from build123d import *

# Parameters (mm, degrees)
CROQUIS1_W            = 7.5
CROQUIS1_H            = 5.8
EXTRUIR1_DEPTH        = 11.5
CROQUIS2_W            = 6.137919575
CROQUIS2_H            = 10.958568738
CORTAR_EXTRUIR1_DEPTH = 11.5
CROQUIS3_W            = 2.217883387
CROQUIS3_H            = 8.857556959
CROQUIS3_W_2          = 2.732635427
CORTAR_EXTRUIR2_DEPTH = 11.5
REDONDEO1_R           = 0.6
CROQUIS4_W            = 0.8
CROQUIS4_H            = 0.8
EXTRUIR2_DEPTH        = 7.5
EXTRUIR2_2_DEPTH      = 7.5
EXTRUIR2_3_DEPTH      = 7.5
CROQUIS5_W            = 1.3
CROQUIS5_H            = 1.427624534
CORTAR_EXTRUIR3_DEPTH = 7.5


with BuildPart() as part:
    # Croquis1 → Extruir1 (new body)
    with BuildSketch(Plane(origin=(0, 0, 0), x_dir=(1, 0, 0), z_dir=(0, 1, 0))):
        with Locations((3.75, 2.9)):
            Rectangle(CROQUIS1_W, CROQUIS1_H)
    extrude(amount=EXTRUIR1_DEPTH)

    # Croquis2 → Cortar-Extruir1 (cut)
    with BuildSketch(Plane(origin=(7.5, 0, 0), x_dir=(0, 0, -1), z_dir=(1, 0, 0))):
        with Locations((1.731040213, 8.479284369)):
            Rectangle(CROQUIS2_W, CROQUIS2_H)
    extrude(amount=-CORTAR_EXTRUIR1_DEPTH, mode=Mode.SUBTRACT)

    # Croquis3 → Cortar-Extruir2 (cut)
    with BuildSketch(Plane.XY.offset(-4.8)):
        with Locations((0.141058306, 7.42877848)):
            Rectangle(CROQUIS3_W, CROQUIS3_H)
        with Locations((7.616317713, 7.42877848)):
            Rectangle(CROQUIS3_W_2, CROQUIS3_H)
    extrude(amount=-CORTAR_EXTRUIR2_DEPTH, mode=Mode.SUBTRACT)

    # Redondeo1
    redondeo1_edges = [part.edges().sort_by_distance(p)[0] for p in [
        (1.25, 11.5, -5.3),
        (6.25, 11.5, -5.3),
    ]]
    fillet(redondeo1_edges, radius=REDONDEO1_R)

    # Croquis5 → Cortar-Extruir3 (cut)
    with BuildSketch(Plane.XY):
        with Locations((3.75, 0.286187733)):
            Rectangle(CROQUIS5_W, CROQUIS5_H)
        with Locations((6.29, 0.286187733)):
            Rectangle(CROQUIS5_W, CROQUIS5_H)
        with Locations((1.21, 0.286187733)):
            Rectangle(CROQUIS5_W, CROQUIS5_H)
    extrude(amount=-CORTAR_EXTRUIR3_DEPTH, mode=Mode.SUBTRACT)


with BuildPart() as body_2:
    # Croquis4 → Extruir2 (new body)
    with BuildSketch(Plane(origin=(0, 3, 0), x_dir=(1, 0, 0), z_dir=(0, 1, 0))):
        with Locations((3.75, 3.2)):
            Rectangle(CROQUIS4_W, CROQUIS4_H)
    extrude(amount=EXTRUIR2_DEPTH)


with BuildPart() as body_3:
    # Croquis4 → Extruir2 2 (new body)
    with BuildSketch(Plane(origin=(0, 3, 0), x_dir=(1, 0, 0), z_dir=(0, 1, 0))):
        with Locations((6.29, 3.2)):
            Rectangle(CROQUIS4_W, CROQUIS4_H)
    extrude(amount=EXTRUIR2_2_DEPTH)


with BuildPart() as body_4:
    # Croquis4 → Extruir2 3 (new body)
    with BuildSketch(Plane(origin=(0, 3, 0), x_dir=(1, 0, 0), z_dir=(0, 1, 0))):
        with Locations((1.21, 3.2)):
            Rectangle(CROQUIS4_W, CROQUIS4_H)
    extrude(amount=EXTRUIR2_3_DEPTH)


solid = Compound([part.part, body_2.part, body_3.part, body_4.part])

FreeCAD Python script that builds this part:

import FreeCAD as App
import Part
import Sketcher
from FreeCAD import Vector
Q = App.Units.Quantity


def edges_at(feature, points):
    """Names of the edges that pass closest to the given points."""
    edges = feature.Shape.Edges
    near = lambda p: min(range(len(edges)), key=lambda i: edges[i].distToShape(Part.Vertex(*p))[0])
    return sorted({f"Edge{near(p) + 1}" for p in points})

doc = App.newDocument("Part")
body = doc.addObject("PartDesign::Body", "Body")

# Sketch on XZ plane
sketch1 = body.newObject("Sketcher::SketchObject", "Sketch")
sketch1.AttachmentSupport = (doc.getObject("XZ_Plane"), [""])
sketch1.MapMode = "FlatFace"
sketch1.addGeometry(Part.LineSegment(Vector(0, -6, 0), Vector(0, 0, 0)), False)
sketch1.addGeometry(Part.LineSegment(Vector(0, 0, 0), Vector(8, 0, 0)), False)
sketch1.addGeometry(Part.LineSegment(Vector(8, 0, 0), Vector(8, -6, 0)), False)
sketch1.addGeometry(Part.LineSegment(Vector(8, -6, 0), Vector(0, -6, 0)), False)
sketch1.addConstraint(Sketcher.Constraint("Coincident", 0, 2, 1, 1))
sketch1.addConstraint(Sketcher.Constraint("Coincident", 1, 2, 2, 1))
sketch1.addConstraint(Sketcher.Constraint("Coincident", 2, 2, 3, 1))
sketch1.addConstraint(Sketcher.Constraint("Coincident", 3, 2, 0, 1))
sketch1.addConstraint(Sketcher.Constraint("Vertical", 0))
sketch1.addConstraint(Sketcher.Constraint("Horizontal", 1))
sketch1.addConstraint(Sketcher.Constraint("Vertical", 2))
sketch1.addConstraint(Sketcher.Constraint("Horizontal", 3))
sketch1.addConstraint(Sketcher.Constraint("Coincident", 0, 2, -1, 1))
sketch1.addConstraint(Sketcher.Constraint("DistanceX", 1, 1, 1, 2, Q("7.5 mm")))
sketch1.addConstraint(Sketcher.Constraint("DistanceY", 0, 1, 0, 2, Q("5.8 mm")))
pad1 = body.newObject("PartDesign::Pad", "Pad")
pad1.Profile = sketch1
pad1.Length = 11.5
pad1.Reversed = True

# Sketch on YZ plane
sketch2 = body.newObject("Sketcher::SketchObject", "Sketch001")
sketch2.AttachmentSupport = (doc.getObject("YZ_Plane"), [""])
sketch2.MapMode = "FlatFace"
sketch2.AttachmentOffset = App.Placement(Vector(0, 0, 7.5), App.Rotation())
sketch2.addGeometry(Part.LineSegment(Vector(14, 1, 0), Vector(3, 1, 0)), False)
sketch2.addGeometry(Part.LineSegment(Vector(3, 1, 0), Vector(3, -5, 0)), False)
sketch2.addGeometry(Part.LineSegment(Vector(3, -5, 0), Vector(14, -5, 0)), False)
sketch2.addGeometry(Part.LineSegment(Vector(14, -5, 0), Vector(14, 1, 0)), False)
sketch2.addConstraint(Sketcher.Constraint("Coincident", 0, 2, 1, 1))
sketch2.addConstraint(Sketcher.Constraint("Coincident", 1, 2, 2, 1))
sketch2.addConstraint(Sketcher.Constraint("Coincident", 2, 2, 3, 1))
sketch2.addConstraint(Sketcher.Constraint("Coincident", 3, 2, 0, 1))
sketch2.addConstraint(Sketcher.Constraint("Horizontal", 0))
sketch2.addConstraint(Sketcher.Constraint("Vertical", 1))
sketch2.addConstraint(Sketcher.Constraint("Horizontal", 2))
sketch2.addConstraint(Sketcher.Constraint("Vertical", 3))
sketch2.addConstraint(Sketcher.Constraint("DistanceX", -1, 1, 0, 2, Q("3 mm")))
sketch2.addConstraint(Sketcher.Constraint("DistanceY", 1, 2, -1, 1, Q("4.8 mm")))
sketch2.addConstraint(Sketcher.Constraint("DistanceX", 0, 2, 0, 1, Q("10.958569 mm")))
sketch2.addConstraint(Sketcher.Constraint("DistanceY", 1, 2, 1, 1, Q("6.13792 mm")))
pocket1 = body.newObject("PartDesign::Pocket", "Pocket")
pocket1.Profile = sketch2
pocket1.Length = 11.5

# Sketch on XY plane
sketch3 = body.newObject("Sketcher::SketchObject", "Sketch002")
sketch3.AttachmentSupport = (doc.getObject("XY_Plane"), [""])
sketch3.MapMode = "FlatFace"
sketch3.AttachmentOffset = App.Placement(Vector(0, 0, -4.8), App.Rotation())
sketch3.addGeometry(Part.LineSegment(Vector(-1, 11.9, 0), Vector(-1, 3, 0)), False)
sketch3.addGeometry(Part.LineSegment(Vector(-1, 3, 0), Vector(1.2, 3, 0)), False)
sketch3.addGeometry(Part.LineSegment(Vector(1.2, 3, 0), Vector(1.2, 11.9, 0)), False)
sketch3.addGeometry(Part.LineSegment(Vector(1.2, 11.9, 0), Vector(-1, 11.9, 0)), False)
sketch3.addGeometry(Part.LineSegment(Vector(6.2, 11.9, 0), Vector(6.2, 3, 0)), False)
sketch3.addGeometry(Part.LineSegment(Vector(6.2, 3, 0), Vector(9, 3, 0)), False)
sketch3.addGeometry(Part.LineSegment(Vector(9, 3, 0), Vector(9, 11.9, 0)), False)
sketch3.addGeometry(Part.LineSegment(Vector(9, 11.9, 0), Vector(6.2, 11.9, 0)), False)
sketch3.addConstraint(Sketcher.Constraint("Coincident", 0, 2, 1, 1))
sketch3.addConstraint(Sketcher.Constraint("Coincident", 1, 2, 2, 1))
sketch3.addConstraint(Sketcher.Constraint("Coincident", 2, 2, 3, 1))
sketch3.addConstraint(Sketcher.Constraint("Coincident", 3, 2, 0, 1))
sketch3.addConstraint(Sketcher.Constraint("Coincident", 4, 2, 5, 1))
sketch3.addConstraint(Sketcher.Constraint("Coincident", 5, 2, 6, 1))
sketch3.addConstraint(Sketcher.Constraint("Coincident", 6, 2, 7, 1))
sketch3.addConstraint(Sketcher.Constraint("Coincident", 7, 2, 4, 1))
sketch3.addConstraint(Sketcher.Constraint("Vertical", 0))
sketch3.addConstraint(Sketcher.Constraint("Horizontal", 1))
sketch3.addConstraint(Sketcher.Constraint("Vertical", 2))
sketch3.addConstraint(Sketcher.Constraint("Horizontal", 3))
sketch3.addConstraint(Sketcher.Constraint("Vertical", 4))
sketch3.addConstraint(Sketcher.Constraint("Horizontal", 5))
sketch3.addConstraint(Sketcher.Constraint("Vertical", 6))
sketch3.addConstraint(Sketcher.Constraint("Horizontal", 7))
sketch3.addConstraint(Sketcher.Constraint("Horizontal", 1, 2, 4, 2))
sketch3.addConstraint(Sketcher.Constraint("Horizontal", 3, 2, 6, 2))
sketch3.addConstraint(Sketcher.Constraint("DistanceY", -1, 1, 0, 2, Q("3 mm")))
sketch3.addConstraint(Sketcher.Constraint("DistanceX", 1, 2, 4, 2, Q("5 mm")))
sketch3.addConstraint(Sketcher.Constraint("DistanceX", -1, 1, 1, 2, Q("1.25 mm")))
sketch3.addConstraint(Sketcher.Constraint("DistanceX", 1, 1, 1, 2, Q("2.217883 mm")))
sketch3.addConstraint(Sketcher.Constraint("DistanceX", 5, 1, 5, 2, Q("2.732635 mm")))
sketch3.addConstraint(Sketcher.Constraint("DistanceY", 0, 2, 0, 1, Q("8.857557 mm")))
pocket2 = body.newObject("PartDesign::Pocket", "Pocket001")
pocket2.Profile = sketch3
pocket2.Length = 11.5
doc.recompute()

fillet = body.newObject("PartDesign::Fillet", "Fillet")
fillet.Base = (pocket2, edges_at(pocket2, [(1.25, 11.5, -5.3), (6.25, 11.5, -5.3)]))
fillet.Radius = 0.6

# Sketch on XY plane
sketch4 = body.newObject("Sketcher::SketchObject", "Sketch003")
sketch4.AttachmentSupport = (doc.getObject("XY_Plane"), [""])
sketch4.MapMode = "FlatFace"
sketch4.addGeometry(Part.LineSegment(Vector(3.1, 1, 0), Vector(3.1, -0.4, 0)), False)
sketch4.addGeometry(Part.LineSegment(Vector(3.1, -0.4, 0), Vector(4.4, -0.4, 0)), False)
sketch4.addGeometry(Part.LineSegment(Vector(4.4, -0.4, 0), Vector(4.4, 1, 0)), False)
sketch4.addGeometry(Part.LineSegment(Vector(4.4, 1, 0), Vector(3.1, 1, 0)), False)
sketch4.addGeometry(Part.LineSegment(Vector(5.6, 1, 0), Vector(5.6, -0.4, 0)), False)
sketch4.addGeometry(Part.LineSegment(Vector(5.6, -0.4, 0), Vector(6.9, -0.4, 0)), False)
sketch4.addGeometry(Part.LineSegment(Vector(6.9, -0.4, 0), Vector(6.9, 1, 0)), False)
sketch4.addGeometry(Part.LineSegment(Vector(6.9, 1, 0), Vector(5.6, 1, 0)), False)
sketch4.addGeometry(Part.LineSegment(Vector(0.6, 1, 0), Vector(0.6, -0.4, 0)), False)
sketch4.addGeometry(Part.LineSegment(Vector(0.6, -0.4, 0), Vector(1.9, -0.4, 0)), False)
sketch4.addGeometry(Part.LineSegment(Vector(1.9, -0.4, 0), Vector(1.9, 1, 0)), False)
sketch4.addGeometry(Part.LineSegment(Vector(1.9, 1, 0), Vector(0.6, 1, 0)), False)
sketch4.addConstraint(Sketcher.Constraint("Coincident", 0, 2, 1, 1))
sketch4.addConstraint(Sketcher.Constraint("Coincident", 1, 2, 2, 1))
sketch4.addConstraint(Sketcher.Constraint("Coincident", 2, 2, 3, 1))
sketch4.addConstraint(Sketcher.Constraint("Coincident", 3, 2, 0, 1))
sketch4.addConstraint(Sketcher.Constraint("Coincident", 4, 2, 5, 1))
sketch4.addConstraint(Sketcher.Constraint("Coincident", 5, 2, 6, 1))
sketch4.addConstraint(Sketcher.Constraint("Coincident", 6, 2, 7, 1))
sketch4.addConstraint(Sketcher.Constraint("Coincident", 7, 2, 4, 1))
sketch4.addConstraint(Sketcher.Constraint("Coincident", 8, 2, 9, 1))
sketch4.addConstraint(Sketcher.Constraint("Coincident", 9, 2, 10, 1))
sketch4.addConstraint(Sketcher.Constraint("Coincident", 10, 2, 11, 1))
sketch4.addConstraint(Sketcher.Constraint("Coincident", 11, 2, 8, 1))
sketch4.addConstraint(Sketcher.Constraint("Vertical", 0))
sketch4.addConstraint(Sketcher.Constraint("Horizontal", 1))
sketch4.addConstraint(Sketcher.Constraint("Vertical", 2))
sketch4.addConstraint(Sketcher.Constraint("Horizontal", 3))
sketch4.addConstraint(Sketcher.Constraint("Vertical", 4))
sketch4.addConstraint(Sketcher.Constraint("Horizontal", 5))
sketch4.addConstraint(Sketcher.Constraint("Vertical", 6))
sketch4.addConstraint(Sketcher.Constraint("Horizontal", 7))
sketch4.addConstraint(Sketcher.Constraint("Vertical", 8))
sketch4.addConstraint(Sketcher.Constraint("Horizontal", 9))
sketch4.addConstraint(Sketcher.Constraint("Vertical", 10))
sketch4.addConstraint(Sketcher.Constraint("Horizontal", 11))
sketch4.addConstraint(Sketcher.Constraint("Horizontal", 1, 2, 4, 2))
sketch4.addConstraint(Sketcher.Constraint("Horizontal", 3, 2, 6, 2))
sketch4.addConstraint(Sketcher.Constraint("Horizontal", 5, 2, 8, 2))
sketch4.addConstraint(Sketcher.Constraint("Horizontal", 7, 2, 10, 2))
sketch4.addConstraint(Sketcher.Constraint("Equal", 3, 5))
sketch4.addConstraint(Sketcher.Constraint("Equal", 7, 9))
sketch4.addConstraint(Sketcher.Constraint("DistanceX", 1, 1, 1, 2, Q("1.3 mm")))
sketch4.addConstraint(Sketcher.Constraint("DistanceY", -1, 1, 2, 2, Q("1 mm")))
sketch4.addConstraint(Sketcher.Constraint("DistanceX", -1, 1, 0, 2, Q("3.1 mm")))
sketch4.addConstraint(Sketcher.Constraint("DistanceX", -1, 1, 4, 2, Q("5.64 mm")))
sketch4.addConstraint(Sketcher.Constraint("DistanceX", -1, 1, 8, 2, Q("0.56 mm")))
sketch4.addConstraint(Sketcher.Constraint("DistanceY", 0, 2, 0, 1, Q("1.427625 mm")))
pocket3 = body.newObject("PartDesign::Pocket", "Pocket002")
pocket3.Profile = sketch4
pocket3.Length = 7.5
body2 = doc.addObject("PartDesign::Body", "Body001")

# Sketch on XZ plane
sketch5 = body2.newObject("Sketcher::SketchObject", "Sketch004")
sketch5.AttachmentSupport = (doc.getObject("XZ_Plane001"), [""])
sketch5.MapMode = "FlatFace"
sketch5.AttachmentOffset = App.Placement(Vector(0, 0, -3), App.Rotation())
sketch5.addGeometry(Part.LineSegment(Vector(3.4, -3.6, 0), Vector(3.4, -2.8, 0)), False)
sketch5.addGeometry(Part.LineSegment(Vector(3.4, -2.8, 0), Vector(4.2, -2.8, 0)), False)
sketch5.addGeometry(Part.LineSegment(Vector(4.2, -2.8, 0), Vector(4.2, -3.6, 0)), False)
sketch5.addGeometry(Part.LineSegment(Vector(4.2, -3.6, 0), Vector(3.4, -3.6, 0)), False)
sketch5.addConstraint(Sketcher.Constraint("Coincident", 0, 2, 1, 1))
sketch5.addConstraint(Sketcher.Constraint("Coincident", 1, 2, 2, 1))
sketch5.addConstraint(Sketcher.Constraint("Coincident", 2, 2, 3, 1))
sketch5.addConstraint(Sketcher.Constraint("Coincident", 3, 2, 0, 1))
sketch5.addConstraint(Sketcher.Constraint("Vertical", 0))
sketch5.addConstraint(Sketcher.Constraint("Horizontal", 1))
sketch5.addConstraint(Sketcher.Constraint("Vertical", 2))
sketch5.addConstraint(Sketcher.Constraint("Horizontal", 3))
sketch5.addConstraint(Sketcher.Constraint("Equal", 3, 0))
sketch5.addConstraint(Sketcher.Constraint("DistanceX", 1, 1, 1, 2, Q("0.8 mm")))
sketch5.addConstraint(Sketcher.Constraint("DistanceY", 0, 2, -1, 1, Q("2.8 mm")))
sketch5.addConstraint(Sketcher.Constraint("DistanceX", -1, 1, 0, 2, Q("3.35 mm")))
pad2 = body2.newObject("PartDesign::Pad", "Pad001")
pad2.Profile = sketch5
pad2.Length = 7.5
pad2.Reversed = True
body3 = doc.addObject("PartDesign::Body", "Body002")

# Sketch on XZ plane
sketch6 = body3.newObject("Sketcher::SketchObject", "Sketch005")
sketch6.AttachmentSupport = (doc.getObject("XZ_Plane002"), [""])
sketch6.MapMode = "FlatFace"
sketch6.AttachmentOffset = App.Placement(Vector(0, 0, -3), App.Rotation())
sketch6.addGeometry(Part.LineSegment(Vector(5.9, -3.6, 0), Vector(5.9, -2.8, 0)), False)
sketch6.addGeometry(Part.LineSegment(Vector(5.9, -2.8, 0), Vector(6.7, -2.8, 0)), False)
sketch6.addGeometry(Part.LineSegment(Vector(6.7, -2.8, 0), Vector(6.7, -3.6, 0)), False)
sketch6.addGeometry(Part.LineSegment(Vector(6.7, -3.6, 0), Vector(5.9, -3.6, 0)), False)
sketch6.addConstraint(Sketcher.Constraint("Coincident", 0, 2, 1, 1))
sketch6.addConstraint(Sketcher.Constraint("Coincident", 1, 2, 2, 1))
sketch6.addConstraint(Sketcher.Constraint("Coincident", 2, 2, 3, 1))
sketch6.addConstraint(Sketcher.Constraint("Coincident", 3, 2, 0, 1))
sketch6.addConstraint(Sketcher.Constraint("Vertical", 0))
sketch6.addConstraint(Sketcher.Constraint("Horizontal", 1))
sketch6.addConstraint(Sketcher.Constraint("Vertical", 2))
sketch6.addConstraint(Sketcher.Constraint("Horizontal", 3))
sketch6.addConstraint(Sketcher.Constraint("Equal", 3, 0))
sketch6.addConstraint(Sketcher.Constraint("DistanceX", 1, 1, 1, 2, Q("0.8 mm")))
sketch6.addConstraint(Sketcher.Constraint("DistanceY", 0, 2, -1, 1, Q("2.8 mm")))
sketch6.addConstraint(Sketcher.Constraint("DistanceX", -1, 1, 0, 2, Q("5.89 mm")))
pad3 = body3.newObject("PartDesign::Pad", "Pad002")
pad3.Profile = sketch6
pad3.Length = 7.5
pad3.Reversed = True
body4 = doc.addObject("PartDesign::Body", "Body003")

# Sketch on XZ plane
sketch7 = body4.newObject("Sketcher::SketchObject", "Sketch006")
sketch7.AttachmentSupport = (doc.getObject("XZ_Plane003"), [""])
sketch7.MapMode = "FlatFace"
sketch7.AttachmentOffset = App.Placement(Vector(0, 0, -3), App.Rotation())
sketch7.addGeometry(Part.LineSegment(Vector(0.8, -3.6, 0), Vector(0.8, -2.8, 0)), False)
sketch7.addGeometry(Part.LineSegment(Vector(0.8, -2.8, 0), Vector(1.6, -2.8, 0)), False)
sketch7.addGeometry(Part.LineSegment(Vector(1.6, -2.8, 0), Vector(1.6, -3.6, 0)), False)
sketch7.addGeometry(Part.LineSegment(Vector(1.6, -3.6, 0), Vector(0.8, -3.6, 0)), False)
sketch7.addConstraint(Sketcher.Constraint("Coincident", 0, 2, 1, 1))
sketch7.addConstraint(Sketcher.Constraint("Coincident", 1, 2, 2, 1))
sketch7.addConstraint(Sketcher.Constraint("Coincident", 2, 2, 3, 1))
sketch7.addConstraint(Sketcher.Constraint("Coincident", 3, 2, 0, 1))
sketch7.addConstraint(Sketcher.Constraint("Vertical", 0))
sketch7.addConstraint(Sketcher.Constraint("Horizontal", 1))
sketch7.addConstraint(Sketcher.Constraint("Vertical", 2))
sketch7.addConstraint(Sketcher.Constraint("Horizontal", 3))
sketch7.addConstraint(Sketcher.Constraint("Equal", 3, 0))
sketch7.addConstraint(Sketcher.Constraint("DistanceX", 1, 1, 1, 2, Q("0.8 mm")))
sketch7.addConstraint(Sketcher.Constraint("DistanceY", 0, 2, -1, 1, Q("2.8 mm")))
sketch7.addConstraint(Sketcher.Constraint("DistanceX", -1, 1, 0, 2, Q("0.81 mm")))
pad4 = body4.newObject("PartDesign::Pad", "Pad003")
pad4.Profile = sketch7
pad4.Length = 7.5
pad4.Reversed = True

doc.recompute()
